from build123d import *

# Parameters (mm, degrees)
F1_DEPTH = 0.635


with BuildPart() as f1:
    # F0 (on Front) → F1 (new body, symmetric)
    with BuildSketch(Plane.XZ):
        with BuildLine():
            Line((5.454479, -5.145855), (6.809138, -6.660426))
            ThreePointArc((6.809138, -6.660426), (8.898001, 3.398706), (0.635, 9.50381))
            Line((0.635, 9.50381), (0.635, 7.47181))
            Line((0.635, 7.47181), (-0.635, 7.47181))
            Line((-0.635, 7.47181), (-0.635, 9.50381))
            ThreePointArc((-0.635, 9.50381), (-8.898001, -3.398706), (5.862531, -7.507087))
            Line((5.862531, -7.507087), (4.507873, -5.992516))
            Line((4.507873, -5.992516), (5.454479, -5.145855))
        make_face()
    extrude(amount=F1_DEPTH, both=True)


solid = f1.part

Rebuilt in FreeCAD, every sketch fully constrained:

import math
import FreeCAD as App
import Part
import Sketcher

V = App.Vector
Q = App.Units.Quantity

doc = App.newDocument("Part")
params = doc.addObject("Spreadsheet::Sheet", "Params")
for row, (alias, value) in enumerate([
    ("sketch1_radius", "0.375 in"),
    ("sketch1_width", "0.05 in"),
    ("sketch1_height", "0.08 in"),
    ("sketch1_length", "0.08 in"),
    ("sketch1_length2", "0.05 in"),
    ("pad1_length", "0.05 in"),
], start=1):
    params.set(f"A{row}", alias)
    params.set(f"B{row}", "=" + value)
    params.setAlias(f"B{row}", alias)

body = doc.addObject("PartDesign::Body", "Body")

# Sketch on XZ plane
sketch1 = body.newObject("Sketcher::SketchObject", "Sketch")
sketch1.AttachmentSupport = (doc.getObject("XZ_Plane"), [""])
sketch1.MapMode = "FlatFace"
sketch1.addGeometry(Part.LineSegment(V(5.454479, -5.145855, 0), V(6.809138, -6.660426, 0)), False)
sketch1.addGeometry(Part.ArcOfCircle(Part.Circle(V(-0.000001, 0, 0), V(0, 0, 1), 9.525001), math.radians(-44.367442), math.radians(86.177443)), False)
sketch1.addGeometry(Part.LineSegment(V(0.635, 9.50381, 0), V(0.635, 7.47181, 0)), False)
sketch1.addGeometry(Part.LineSegment(V(0.635, 7.47181, 0), V(-0.635, 7.47181, 0)), False)
sketch1.addGeometry(Part.LineSegment(V(-0.635, 7.47181, 0), V(-0.635, 9.50381, 0)), False)
sketch1.addGeometry(Part.ArcOfCircle(Part.Circle(V(0, 0, 0), V(0, 0, 1), 9.525), math.radians(93.822554), math.radians(307.987446)), False)
sketch1.addGeometry(Part.LineSegment(V(5.862531, -7.507087, 0), V(4.507873, -5.992516, 0)), False)
sketch1.addGeometry(Part.LineSegment(V(4.507873, -5.992516, 0), V(5.454479, -5.145855, 0)), False)
sketch1.addConstraint(Sketcher.Constraint("Coincident", 0, 2, 1, 1))
sketch1.addConstraint(Sketcher.Constraint("Coincident", 1, 2, 2, 1))
sketch1.addConstraint(Sketcher.Constraint("Coincident", 2, 2, 3, 1))
sketch1.addConstraint(Sketcher.Constraint("Coincident", 3, 2, 4, 1))
sketch1.addConstraint(Sketcher.Constraint("Coincident", 4, 2, 5, 1))
sketch1.addConstraint(Sketcher.Constraint("Coincident", 5, 2, 6, 1))
sketch1.addConstraint(Sketcher.Constraint("Coincident", 6, 2, 7, 1))
sketch1.addConstraint(Sketcher.Constraint("Coincident", 7, 2, 0, 1))
sketch1.addConstraint(Sketcher.Constraint("Vertical", 2))
sketch1.addConstraint(Sketcher.Constraint("Horizontal", 3))
sketch1.addConstraint(Sketcher.Constraint("Vertical", 4))
sketch1.addConstraint(Sketcher.Constraint("Coincident", 1, 3, -1, 1))
sketch1.addConstraint(Sketcher.Constraint("Coincident", 5, 3, -1, 1))
sketch1.addConstraint(Sketcher.Constraint("Equal", 1, 5))
sketch1.addConstraint(Sketcher.Constraint("Parallel", 0, 6))
sketch1.addConstraint(Sketcher.Constraint("Perpendicular", 6, 7))
sketch1.addConstraint(Sketcher.Constraint("Horizontal", 1, 2, 4, 2))
sketch1.addConstraint(Sketcher.Constraint("Equal", 0, 6))
sketch1.addConstraint(Sketcher.Constraint("Radius", 1, Q("0.375 in")))
sketch1.addConstraint(Sketcher.Constraint("DistanceX", 3, 2, 3, 1, Q("0.05 in")))
sketch1.addConstraint(Sketcher.Constraint("DistanceY", 2, 2, 2, 1, Q("0.08 in")))
sketch1.addConstraint(Sketcher.Constraint("Distance", 0, Q("0.08 in")))
sketch1.addConstraint(Sketcher.Constraint("Distance", 7, Q("0.05 in")))
sketch1.addConstraint(Sketcher.Constraint("Angle", 0, Q("-48.18999 deg")))
sketch1.setExpression("Constraints[18]", "Params.sketch1_radius")
sketch1.setExpression("Constraints[19]", "Params.sketch1_width")
sketch1.setExpression("Constraints[20]", "Params.sketch1_height")
sketch1.setExpression("Constraints[21]", "Params.sketch1_length")
sketch1.setExpression("Constraints[22]", "Params.sketch1_length2")
pad1 = body.newObject("PartDesign::Pad", "Pad")
pad1.Profile = sketch1
pad1.setExpression("Length", "Params.pad1_length")
pad1.Midplane = True

doc.recompute()
